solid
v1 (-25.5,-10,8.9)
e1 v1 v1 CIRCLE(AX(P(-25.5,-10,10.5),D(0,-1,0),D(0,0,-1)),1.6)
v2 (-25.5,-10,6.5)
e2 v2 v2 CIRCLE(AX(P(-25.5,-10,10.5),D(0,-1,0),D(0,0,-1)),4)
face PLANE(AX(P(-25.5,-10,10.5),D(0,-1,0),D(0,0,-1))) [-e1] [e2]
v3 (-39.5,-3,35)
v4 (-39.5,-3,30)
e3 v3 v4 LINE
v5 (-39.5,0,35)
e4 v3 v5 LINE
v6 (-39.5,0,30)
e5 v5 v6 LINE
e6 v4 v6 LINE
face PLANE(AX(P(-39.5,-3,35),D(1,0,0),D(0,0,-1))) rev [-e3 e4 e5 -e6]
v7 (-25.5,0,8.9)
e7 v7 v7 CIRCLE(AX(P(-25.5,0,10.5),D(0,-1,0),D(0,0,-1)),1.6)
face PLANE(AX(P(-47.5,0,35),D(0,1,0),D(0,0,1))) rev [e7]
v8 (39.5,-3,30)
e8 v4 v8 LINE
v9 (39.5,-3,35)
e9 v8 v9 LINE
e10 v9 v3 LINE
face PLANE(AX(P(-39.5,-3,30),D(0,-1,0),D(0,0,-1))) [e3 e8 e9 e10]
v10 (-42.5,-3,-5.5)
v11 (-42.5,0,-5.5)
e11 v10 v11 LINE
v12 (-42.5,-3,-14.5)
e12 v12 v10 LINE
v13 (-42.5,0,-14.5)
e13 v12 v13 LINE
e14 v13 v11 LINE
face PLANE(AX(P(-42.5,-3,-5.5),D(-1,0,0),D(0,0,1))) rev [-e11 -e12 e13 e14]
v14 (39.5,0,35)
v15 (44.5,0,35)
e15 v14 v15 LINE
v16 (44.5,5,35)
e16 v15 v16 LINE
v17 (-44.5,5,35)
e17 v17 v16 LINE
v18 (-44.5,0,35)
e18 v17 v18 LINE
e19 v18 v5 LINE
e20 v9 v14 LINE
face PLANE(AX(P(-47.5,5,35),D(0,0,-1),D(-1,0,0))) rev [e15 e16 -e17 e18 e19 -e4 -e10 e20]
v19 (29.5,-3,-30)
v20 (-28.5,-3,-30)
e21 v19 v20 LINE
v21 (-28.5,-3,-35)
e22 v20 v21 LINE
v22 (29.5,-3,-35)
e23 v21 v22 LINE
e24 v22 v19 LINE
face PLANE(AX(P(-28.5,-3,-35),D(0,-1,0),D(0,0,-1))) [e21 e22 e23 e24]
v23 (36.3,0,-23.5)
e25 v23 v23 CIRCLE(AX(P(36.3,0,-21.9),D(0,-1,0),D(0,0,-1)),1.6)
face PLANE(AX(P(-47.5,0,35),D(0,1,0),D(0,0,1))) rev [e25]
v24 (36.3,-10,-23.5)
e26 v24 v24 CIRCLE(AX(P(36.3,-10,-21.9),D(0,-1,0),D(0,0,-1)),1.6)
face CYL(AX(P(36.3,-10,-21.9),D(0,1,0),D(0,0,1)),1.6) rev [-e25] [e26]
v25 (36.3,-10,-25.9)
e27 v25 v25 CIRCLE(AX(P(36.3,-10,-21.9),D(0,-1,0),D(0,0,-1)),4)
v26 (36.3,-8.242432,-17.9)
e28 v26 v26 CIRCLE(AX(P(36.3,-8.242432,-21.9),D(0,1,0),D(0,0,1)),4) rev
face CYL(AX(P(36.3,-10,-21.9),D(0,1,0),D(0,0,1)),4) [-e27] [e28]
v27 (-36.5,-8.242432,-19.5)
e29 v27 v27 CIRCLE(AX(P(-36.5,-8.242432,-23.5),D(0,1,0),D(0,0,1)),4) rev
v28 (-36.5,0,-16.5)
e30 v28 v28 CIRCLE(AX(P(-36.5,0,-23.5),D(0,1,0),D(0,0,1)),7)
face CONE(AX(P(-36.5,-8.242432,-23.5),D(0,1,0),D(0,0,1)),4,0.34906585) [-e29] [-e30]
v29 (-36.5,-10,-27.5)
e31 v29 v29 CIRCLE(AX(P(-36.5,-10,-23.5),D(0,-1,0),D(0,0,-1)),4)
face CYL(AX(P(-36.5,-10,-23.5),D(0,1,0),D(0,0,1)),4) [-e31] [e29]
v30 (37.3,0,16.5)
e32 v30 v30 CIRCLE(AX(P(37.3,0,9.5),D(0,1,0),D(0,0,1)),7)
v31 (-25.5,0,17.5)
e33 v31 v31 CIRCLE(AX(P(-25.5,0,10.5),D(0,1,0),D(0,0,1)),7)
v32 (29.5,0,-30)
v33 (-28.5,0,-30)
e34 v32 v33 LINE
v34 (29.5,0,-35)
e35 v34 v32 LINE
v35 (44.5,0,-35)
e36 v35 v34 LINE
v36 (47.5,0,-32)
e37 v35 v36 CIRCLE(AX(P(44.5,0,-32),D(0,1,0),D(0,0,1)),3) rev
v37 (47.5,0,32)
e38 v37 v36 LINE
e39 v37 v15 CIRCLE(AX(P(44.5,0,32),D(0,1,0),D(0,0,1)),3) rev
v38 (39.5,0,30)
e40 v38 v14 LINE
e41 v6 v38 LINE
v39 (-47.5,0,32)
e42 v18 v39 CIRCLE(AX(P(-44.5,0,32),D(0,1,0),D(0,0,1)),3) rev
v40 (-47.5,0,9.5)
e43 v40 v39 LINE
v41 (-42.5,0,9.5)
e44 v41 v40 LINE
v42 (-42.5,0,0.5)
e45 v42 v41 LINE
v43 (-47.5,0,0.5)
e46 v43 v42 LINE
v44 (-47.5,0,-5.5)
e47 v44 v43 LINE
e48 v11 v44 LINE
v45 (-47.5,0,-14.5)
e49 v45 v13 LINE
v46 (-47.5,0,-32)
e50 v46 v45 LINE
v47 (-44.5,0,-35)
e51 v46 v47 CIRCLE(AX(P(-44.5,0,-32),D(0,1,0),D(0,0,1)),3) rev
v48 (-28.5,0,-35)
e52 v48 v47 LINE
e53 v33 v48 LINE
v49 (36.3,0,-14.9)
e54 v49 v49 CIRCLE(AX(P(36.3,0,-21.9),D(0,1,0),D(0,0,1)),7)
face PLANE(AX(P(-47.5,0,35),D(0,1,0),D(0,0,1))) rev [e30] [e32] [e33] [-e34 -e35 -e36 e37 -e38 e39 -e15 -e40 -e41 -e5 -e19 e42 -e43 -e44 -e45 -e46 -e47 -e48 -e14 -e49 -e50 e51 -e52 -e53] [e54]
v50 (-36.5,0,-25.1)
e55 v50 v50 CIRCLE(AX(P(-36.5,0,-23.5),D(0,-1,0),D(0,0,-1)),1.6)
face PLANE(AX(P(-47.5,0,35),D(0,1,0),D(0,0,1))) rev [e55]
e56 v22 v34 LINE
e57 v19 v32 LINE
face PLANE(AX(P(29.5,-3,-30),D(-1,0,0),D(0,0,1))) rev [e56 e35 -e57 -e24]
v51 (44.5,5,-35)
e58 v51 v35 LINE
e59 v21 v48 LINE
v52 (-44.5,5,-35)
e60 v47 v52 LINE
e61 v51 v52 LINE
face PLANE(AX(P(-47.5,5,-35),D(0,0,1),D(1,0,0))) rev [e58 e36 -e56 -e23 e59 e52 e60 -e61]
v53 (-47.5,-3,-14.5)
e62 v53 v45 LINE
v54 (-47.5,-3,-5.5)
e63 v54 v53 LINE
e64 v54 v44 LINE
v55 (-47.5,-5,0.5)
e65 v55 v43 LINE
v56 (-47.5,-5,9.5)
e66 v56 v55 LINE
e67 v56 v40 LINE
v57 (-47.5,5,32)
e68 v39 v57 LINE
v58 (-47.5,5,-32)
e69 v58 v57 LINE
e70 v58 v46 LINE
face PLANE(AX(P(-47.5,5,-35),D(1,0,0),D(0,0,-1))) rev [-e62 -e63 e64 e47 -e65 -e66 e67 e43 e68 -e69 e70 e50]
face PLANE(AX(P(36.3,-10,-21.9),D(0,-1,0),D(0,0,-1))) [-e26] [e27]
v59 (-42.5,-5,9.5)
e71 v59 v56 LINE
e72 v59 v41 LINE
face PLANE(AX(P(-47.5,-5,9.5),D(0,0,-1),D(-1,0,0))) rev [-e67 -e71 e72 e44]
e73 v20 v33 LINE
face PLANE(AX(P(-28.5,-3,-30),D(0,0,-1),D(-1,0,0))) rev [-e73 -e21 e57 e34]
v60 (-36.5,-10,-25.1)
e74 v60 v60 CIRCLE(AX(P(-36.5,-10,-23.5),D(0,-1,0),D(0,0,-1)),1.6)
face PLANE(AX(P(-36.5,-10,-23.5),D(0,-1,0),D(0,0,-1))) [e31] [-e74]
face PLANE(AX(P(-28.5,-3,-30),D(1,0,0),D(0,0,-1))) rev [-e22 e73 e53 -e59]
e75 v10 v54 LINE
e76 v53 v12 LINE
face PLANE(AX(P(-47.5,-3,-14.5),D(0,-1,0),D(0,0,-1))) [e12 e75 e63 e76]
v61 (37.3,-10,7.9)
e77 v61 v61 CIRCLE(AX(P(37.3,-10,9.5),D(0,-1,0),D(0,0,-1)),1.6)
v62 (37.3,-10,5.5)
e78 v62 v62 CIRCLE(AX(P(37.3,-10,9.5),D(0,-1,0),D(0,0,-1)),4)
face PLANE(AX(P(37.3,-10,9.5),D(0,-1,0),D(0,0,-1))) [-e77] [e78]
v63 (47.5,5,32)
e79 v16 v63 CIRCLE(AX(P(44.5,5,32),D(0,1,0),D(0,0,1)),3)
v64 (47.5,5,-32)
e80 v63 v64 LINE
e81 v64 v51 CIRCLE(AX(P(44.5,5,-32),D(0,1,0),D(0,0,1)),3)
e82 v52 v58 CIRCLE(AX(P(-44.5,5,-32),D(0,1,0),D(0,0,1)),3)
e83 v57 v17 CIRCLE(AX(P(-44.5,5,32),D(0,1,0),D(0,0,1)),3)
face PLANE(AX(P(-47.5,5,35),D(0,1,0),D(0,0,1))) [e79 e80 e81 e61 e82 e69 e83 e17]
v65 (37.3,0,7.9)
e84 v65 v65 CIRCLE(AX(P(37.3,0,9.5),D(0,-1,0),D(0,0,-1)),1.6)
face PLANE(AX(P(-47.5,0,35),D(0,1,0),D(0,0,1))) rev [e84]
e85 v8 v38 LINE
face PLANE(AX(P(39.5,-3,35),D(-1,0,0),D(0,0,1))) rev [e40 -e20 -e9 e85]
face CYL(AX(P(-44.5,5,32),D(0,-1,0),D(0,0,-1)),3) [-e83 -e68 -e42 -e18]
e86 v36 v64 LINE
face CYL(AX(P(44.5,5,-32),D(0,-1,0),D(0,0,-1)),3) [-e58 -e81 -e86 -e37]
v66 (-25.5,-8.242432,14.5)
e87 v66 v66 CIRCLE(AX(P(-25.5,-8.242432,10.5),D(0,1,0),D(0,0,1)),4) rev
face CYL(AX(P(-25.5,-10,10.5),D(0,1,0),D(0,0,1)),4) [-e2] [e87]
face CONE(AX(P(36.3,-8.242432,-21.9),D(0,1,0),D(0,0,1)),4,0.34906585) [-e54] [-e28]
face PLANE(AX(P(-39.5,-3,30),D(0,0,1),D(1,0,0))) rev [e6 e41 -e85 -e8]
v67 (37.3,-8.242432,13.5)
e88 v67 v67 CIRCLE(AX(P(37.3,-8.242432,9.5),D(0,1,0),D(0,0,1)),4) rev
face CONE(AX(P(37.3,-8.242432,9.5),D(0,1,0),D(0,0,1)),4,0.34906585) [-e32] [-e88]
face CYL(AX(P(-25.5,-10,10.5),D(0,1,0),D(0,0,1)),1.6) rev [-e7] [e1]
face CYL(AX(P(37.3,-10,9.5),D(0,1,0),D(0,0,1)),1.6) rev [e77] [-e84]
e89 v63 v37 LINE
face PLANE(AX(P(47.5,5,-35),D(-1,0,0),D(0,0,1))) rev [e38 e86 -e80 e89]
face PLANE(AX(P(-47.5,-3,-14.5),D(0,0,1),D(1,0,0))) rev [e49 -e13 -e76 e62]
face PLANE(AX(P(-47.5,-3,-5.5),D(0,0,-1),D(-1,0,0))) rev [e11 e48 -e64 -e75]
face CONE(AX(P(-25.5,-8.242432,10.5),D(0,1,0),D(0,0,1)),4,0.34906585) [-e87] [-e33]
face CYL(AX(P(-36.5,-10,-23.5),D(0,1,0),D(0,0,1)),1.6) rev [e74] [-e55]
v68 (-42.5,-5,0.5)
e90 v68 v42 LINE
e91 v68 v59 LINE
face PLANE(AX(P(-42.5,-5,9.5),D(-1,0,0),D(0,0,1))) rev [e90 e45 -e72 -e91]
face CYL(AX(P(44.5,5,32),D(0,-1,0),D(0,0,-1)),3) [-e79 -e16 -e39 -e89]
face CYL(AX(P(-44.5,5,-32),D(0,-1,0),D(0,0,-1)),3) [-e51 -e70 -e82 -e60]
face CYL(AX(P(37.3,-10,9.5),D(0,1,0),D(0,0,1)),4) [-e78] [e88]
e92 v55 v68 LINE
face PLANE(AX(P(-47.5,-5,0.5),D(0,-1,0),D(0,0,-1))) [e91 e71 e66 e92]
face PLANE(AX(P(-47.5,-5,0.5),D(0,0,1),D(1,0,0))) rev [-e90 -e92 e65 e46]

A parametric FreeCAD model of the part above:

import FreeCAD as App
import Part
import Sketcher

V = App.Vector


def edges_at(feature, points):
    """Names of the edges that pass closest to the given points."""
    edges = feature.Shape.Edges
    near = lambda p: min(range(len(edges)), key=lambda i: edges[i].distToShape(Part.Vertex(*p))[0])
    return sorted({f"Edge{near(p) + 1}" for p in points})

doc = App.newDocument("Part")
params = doc.addObject("Spreadsheet::Sheet", "Params")
for row, (alias, value) in enumerate([
    ("sketch1_width", "95 mm"),
    ("sketch1_height", "70 mm"),
    ("pad1_length", "5 mm"),
    ("sketch2_width", "79 mm"),
    ("sketch2_width2", "58 mm"),
    ("sketch2_width3", "5 mm"),
    ("sketch2_height", "9 mm"),
    ("pad2_length", "3 mm"),
    ("sketch3_width", "5 mm"),
    ("sketch3_height", "9 mm"),
    ("pad3_length", "5 mm"),
    ("fillet_radius", "3 mm"),
    ("sketch4_diameter", "8 mm"),
    ("sketch4_diameter2", "3.2 mm"),
    ("pad4_length", "10 mm"),
    ("chamfer_size", "3 mm"),
    ("chamfer_size2", "8.242432 mm"),
], start=1):
    params.set(f"A{row}", alias)
    params.set(f"B{row}", "=" + value)
    params.setAlias(f"B{row}", alias)

body = doc.addObject("PartDesign::Body", "Body")

# Sketch on XZ plane
sketch1 = body.newObject("Sketcher::SketchObject", "Sketch")
sketch1.AttachmentSupport = (doc.getObject("XZ_Plane"), [""])
sketch1.MapMode = "FlatFace"
sketch1.addGeometry([
    Part.LineSegment(V(-48, -35, 0), V(-48, 35, 0)),
    Part.LineSegment(V(-48, 35, 0), V(48, 35, 0)),
    Part.LineSegment(V(48, 35, 0), V(48, -35, 0)),
    Part.LineSegment(V(48, -35, 0), V(-48, -35, 0)),
], False)
sketch1.addConstraint([
    Sketcher.Constraint("Coincident", 0, 2, 1, 1),
    Sketcher.Constraint("Coincident", 1, 2, 2, 1),
    Sketcher.Constraint("Coincident", 2, 2, 3, 1),
    Sketcher.Constraint("Coincident", 3, 2, 0, 1),
    Sketcher.Constraint("Vertical", 0),
    Sketcher.Constraint("Horizontal", 1),
    Sketcher.Constraint("Vertical", 2),
    Sketcher.Constraint("Horizontal", 3),
    Sketcher.Constraint("Symmetric", 0, 2, 2, 2, -1, 1),
    Sketcher.Constraint("DistanceX", 1, 1, 1, 2, 95.0),
    Sketcher.Constraint("DistanceY", 0, 1, 0, 2, 70.0),
])
sketch1.setExpression("Constraints[9]", "Params.sketch1_width")
sketch1.setExpression("Constraints[10]", "Params.sketch1_height")
pad1 = body.newObject("PartDesign::Pad", "Pad")
pad1.Profile = sketch1
pad1.setExpression("Length", "Params.pad1_length")
pad1.Reversed = True

# Sketch on XZ plane
sketch2 = body.newObject("Sketcher::SketchObject", "Sketch001")
sketch2.AttachmentSupport = (doc.getObject("XZ_Plane"), [""])
sketch2.MapMode = "FlatFace"
sketch2.addGeometry([
    Part.LineSegment(V(-40, 35, 0), V(-40, 30, 0)),  # 0
    Part.LineSegment(V(-40, 30, 0), V(40, 30, 0)),  # 1
    Part.LineSegment(V(40, 30, 0), V(40, 35, 0)),  # 2
    Part.LineSegment(V(40, 35, 0), V(-40, 35, 0)),  # 3
    Part.LineSegment(V(-28, -30, 0), V(-28, -35, 0)),  # 4
    Part.LineSegment(V(-28, -35, 0), V(30, -35, 0)),  # 5
    Part.LineSegment(V(30, -35, 0), V(30, -30, 0)),  # 6
    Part.LineSegment(V(30, -30, 0), V(-28, -30, 0)),  # 7
    Part.LineSegment(V(-48, -6, 0), V(-48, -14, 0)),  # 8
    Part.LineSegment(V(-48, -14, 0), V(-42, -14, 0)),  # 9
    Part.LineSegment(V(-42, -14, 0), V(-42, -6, 0)),  # 10
    Part.LineSegment(V(-42, -6, 0), V(-48, -6, 0)),  # 11
], False)
sketch2.addConstraint([
    Sketcher.Constraint("Coincident", 0, 2, 1, 1),
    Sketcher.Constraint("Coincident", 1, 2, 2, 1),
    Sketcher.Constraint("Coincident", 2, 2, 3, 1),
    Sketcher.Constraint("Coincident", 3, 2, 0, 1),
    Sketcher.Constraint("Coincident", 4, 2, 5, 1),
    Sketcher.Constraint("Coincident", 5, 2, 6, 1),
    Sketcher.Constraint("Coincident", 6, 2, 7, 1),
    Sketcher.Constraint("Coincident", 7, 2, 4, 1),
    Sketcher.Constraint("Coincident", 8, 2, 9, 1),
    Sketcher.Constraint("Coincident", 9, 2, 10, 1),
    Sketcher.Constraint("Coincident", 10, 2, 11, 1),
    Sketcher.Constraint("Coincident", 11, 2, 8, 1),
    Sketcher.Constraint("Vertical", 0),
    Sketcher.Constraint("Horizontal", 1),
    Sketcher.Constraint("Vertical", 2),
    Sketcher.Constraint("Horizontal", 3),
    Sketcher.Constraint("Vertical", 4),
    Sketcher.Constraint("Horizontal", 5),
    Sketcher.Constraint("Vertical", 6),
    Sketcher.Constraint("Horizontal", 7),
    Sketcher.Constraint("Vertical", 8),
    Sketcher.Constraint("Horizontal", 9),
    Sketcher.Constraint("Vertical", 10),
    Sketcher.Constraint("Horizontal", 11),
    Sketcher.Constraint("Equal", 11, 0),
    Sketcher.Constraint("Equal", 2, 4),
    Sketcher.Constraint("DistanceX", 1, 1, 1, 2, 79.0),
    Sketcher.Constraint("DistanceX", 5, 1, 5, 2, 58.0),
    Sketcher.Constraint("DistanceX", 9, 1, 9, 2, 5.0),
    Sketcher.Constraint("DistanceY", 8, 2, 8, 1, 9.0),
    Sketcher.Constraint("DistanceY", -1, 1, 0, 2, 30.0),
    Sketcher.Constraint("DistanceY", 4, 2, -1, 1, 35.0),
    Sketcher.Constraint("DistanceX", 0, 2, 4, 2, 11.0),
    Sketcher.Constraint("DistanceX", 8, 2, 7, 2, 19.0),
    Sketcher.Constraint("DistanceX", 0, 2, -1, 1, 39.5),
    Sketcher.Constraint("DistanceY", 8, 2, -1, 1, 14.5),
])
sketch2.setExpression("Constraints[26]", "Params.sketch2_width")
sketch2.setExpression("Constraints[27]", "Params.sketch2_width2")
sketch2.setExpression("Constraints[28]", "Params.sketch2_width3")
sketch2.setExpression("Constraints[29]", "Params.sketch2_height")
pad2 = body.newObject("PartDesign::Pad", "Pad001")
pad2.Profile = sketch2
pad2.setExpression("Length", "Params.pad2_length")

# Sketch on XZ plane
sketch3 = body.newObject("Sketcher::SketchObject", "Sketch002")
sketch3.AttachmentSupport = (doc.getObject("XZ_Plane"), [""])
sketch3.MapMode = "FlatFace"
sketch3.addGeometry([
    Part.LineSegment(V(-48, 10, 0), V(-48, 0, 0)),
    Part.LineSegment(V(-48, 0, 0), V(-42, 0, 0)),
    Part.LineSegment(V(-42, 0, 0), V(-42, 10, 0)),
    Part.LineSegment(V(-42, 10, 0), V(-48, 10, 0)),
], False)
sketch3.addConstraint([
    Sketcher.Constraint("Coincident", 0, 2, 1, 1),
    Sketcher.Constraint("Coincident", 1, 2, 2, 1),
    Sketcher.Constraint("Coincident", 2, 2, 3, 1),
    Sketcher.Constraint("Coincident", 3, 2, 0, 1),
    Sketcher.Constraint("Vertical", 0),
    Sketcher.Constraint("Horizontal", 1),
    Sketcher.Constraint("Vertical", 2),
    Sketcher.Constraint("Horizontal", 3),
    Sketcher.Constraint("DistanceX", 1, 1, 1, 2, 5.0),
    Sketcher.Constraint("DistanceY", 0, 2, 0, 1, 9.0),
    Sketcher.Constraint("DistanceX", 0, 2, -1, 1, 47.5),
    Sketcher.Constraint("DistanceY", -1, 1, 0, 2, 0.5),
])
sketch3.setExpression("Constraints[8]", "Params.sketch3_width")
sketch3.setExpression("Constraints[9]", "Params.sketch3_height")
pad3 = body.newObject("PartDesign::Pad", "Pad002")
pad3.Profile = sketch3
pad3.setExpression("Length", "Params.pad3_length")
doc.recompute()

fillet = body.newObject("PartDesign::Fillet", "Fillet")
fillet.Base = (pad3, edges_at(pad3, [
    (47.5, 2.5, -35),
    (-47.5, 2.5, -35),
    (-47.5, 2.5, 35),
    (47.5, 2.5, 35),
]))
fillet.setExpression("Radius", "Params.fillet_radius")

# Sketch on XZ plane
sketch4 = body.newObject("Sketcher::SketchObject", "Sketch003")
sketch4.AttachmentSupport = (doc.getObject("XZ_Plane"), [""])
sketch4.MapMode = "FlatFace"
sketch4.addGeometry([
    Part.Circle(V(-25.5, 10.5, 0), V(0, 0, 1), 4),  # 0
    Part.Circle(V(-25.5, 10.5, 0), V(0, 0, 1), 1.6),  # 1
    Part.Circle(V(37.3, 9.5, 0), V(0, 0, 1), 4),  # 2
    Part.Circle(V(37.3, 9.5, 0), V(0, 0, 1), 1.6),  # 3
    Part.Circle(V(36.3, -21.9, 0), V(0, 0, 1), 4),  # 4
    Part.Circle(V(36.3, -21.9, 0), V(0, 0, 1), 1.6),  # 5
    Part.Circle(V(-36.5, -23.5, 0), V(0, 0, 1), 4),  # 6
    Part.Circle(V(-36.5, -23.5, 0), V(0, 0, 1), 1.6),  # 7
], False)
sketch4.addConstraint([
    Sketcher.Constraint("Coincident", 1, 3, 0, 3),
    Sketcher.Constraint("Coincident", 3, 3, 2, 3),
    Sketcher.Constraint("Coincident", 5, 3, 4, 3),
    Sketcher.Constraint("Coincident", 7, 3, 6, 3),
    Sketcher.Constraint("Equal", 0, 2),
    Sketcher.Constraint("Equal", 1, 3),
    Sketcher.Constraint("Equal", 2, 4),
    Sketcher.Constraint("Equal", 3, 5),
    Sketcher.Constraint("Equal", 4, 6),
    Sketcher.Constraint("Equal", 5, 7),
    Sketcher.Constraint("Diameter", 0, 8.0),
    Sketcher.Constraint("Diameter", 1, 3.2),
    Sketcher.Constraint("DistanceY", 2, 3, 0, 3, 1.0),
    Sketcher.Constraint("DistanceX", 4, 3, 2, 3, 1.0),
    Sketcher.Constraint("DistanceX", 6, 3, 0, 3, 11.0),
    Sketcher.Constraint("DistanceY", 6, 3, 0, 3, 34.0),
    Sketcher.Constraint("DistanceX", 0, 3, -1, 1, 25.5),
    Sketcher.Constraint("DistanceY", -1, 1, 0, 3, 10.5),
    Sketcher.Constraint("DistanceX", -1, 1, 2, 3, 37.3),
    Sketcher.Constraint("DistanceY", 4, 3, -1, 1, 21.9),
])
sketch4.setExpression("Constraints[10]", "Params.sketch4_diameter")
sketch4.setExpression("Constraints[11]", "Params.sketch4_diameter2")
pad4 = body.newObject("PartDesign::Pad", "Pad003")
pad4.Profile = sketch4
pad4.setExpression("Length", "Params.pad4_length")
doc.recompute()

chamfer = body.newObject("PartDesign::Chamfer", "Chamfer")
chamfer.Base = (pad4, edges_at(pad4, [
    (-29.5, 0, 10.5),
    (32.3, 0, -21.9),
    (-40.5, 0, -23.5),
    (33.3, 0, 9.5),
]))
chamfer.ChamferType = "Two distances"
chamfer.setExpression("Size", "Params.chamfer_size")
chamfer.setExpression("Size2", "Params.chamfer_size2")

doc.recompute()
